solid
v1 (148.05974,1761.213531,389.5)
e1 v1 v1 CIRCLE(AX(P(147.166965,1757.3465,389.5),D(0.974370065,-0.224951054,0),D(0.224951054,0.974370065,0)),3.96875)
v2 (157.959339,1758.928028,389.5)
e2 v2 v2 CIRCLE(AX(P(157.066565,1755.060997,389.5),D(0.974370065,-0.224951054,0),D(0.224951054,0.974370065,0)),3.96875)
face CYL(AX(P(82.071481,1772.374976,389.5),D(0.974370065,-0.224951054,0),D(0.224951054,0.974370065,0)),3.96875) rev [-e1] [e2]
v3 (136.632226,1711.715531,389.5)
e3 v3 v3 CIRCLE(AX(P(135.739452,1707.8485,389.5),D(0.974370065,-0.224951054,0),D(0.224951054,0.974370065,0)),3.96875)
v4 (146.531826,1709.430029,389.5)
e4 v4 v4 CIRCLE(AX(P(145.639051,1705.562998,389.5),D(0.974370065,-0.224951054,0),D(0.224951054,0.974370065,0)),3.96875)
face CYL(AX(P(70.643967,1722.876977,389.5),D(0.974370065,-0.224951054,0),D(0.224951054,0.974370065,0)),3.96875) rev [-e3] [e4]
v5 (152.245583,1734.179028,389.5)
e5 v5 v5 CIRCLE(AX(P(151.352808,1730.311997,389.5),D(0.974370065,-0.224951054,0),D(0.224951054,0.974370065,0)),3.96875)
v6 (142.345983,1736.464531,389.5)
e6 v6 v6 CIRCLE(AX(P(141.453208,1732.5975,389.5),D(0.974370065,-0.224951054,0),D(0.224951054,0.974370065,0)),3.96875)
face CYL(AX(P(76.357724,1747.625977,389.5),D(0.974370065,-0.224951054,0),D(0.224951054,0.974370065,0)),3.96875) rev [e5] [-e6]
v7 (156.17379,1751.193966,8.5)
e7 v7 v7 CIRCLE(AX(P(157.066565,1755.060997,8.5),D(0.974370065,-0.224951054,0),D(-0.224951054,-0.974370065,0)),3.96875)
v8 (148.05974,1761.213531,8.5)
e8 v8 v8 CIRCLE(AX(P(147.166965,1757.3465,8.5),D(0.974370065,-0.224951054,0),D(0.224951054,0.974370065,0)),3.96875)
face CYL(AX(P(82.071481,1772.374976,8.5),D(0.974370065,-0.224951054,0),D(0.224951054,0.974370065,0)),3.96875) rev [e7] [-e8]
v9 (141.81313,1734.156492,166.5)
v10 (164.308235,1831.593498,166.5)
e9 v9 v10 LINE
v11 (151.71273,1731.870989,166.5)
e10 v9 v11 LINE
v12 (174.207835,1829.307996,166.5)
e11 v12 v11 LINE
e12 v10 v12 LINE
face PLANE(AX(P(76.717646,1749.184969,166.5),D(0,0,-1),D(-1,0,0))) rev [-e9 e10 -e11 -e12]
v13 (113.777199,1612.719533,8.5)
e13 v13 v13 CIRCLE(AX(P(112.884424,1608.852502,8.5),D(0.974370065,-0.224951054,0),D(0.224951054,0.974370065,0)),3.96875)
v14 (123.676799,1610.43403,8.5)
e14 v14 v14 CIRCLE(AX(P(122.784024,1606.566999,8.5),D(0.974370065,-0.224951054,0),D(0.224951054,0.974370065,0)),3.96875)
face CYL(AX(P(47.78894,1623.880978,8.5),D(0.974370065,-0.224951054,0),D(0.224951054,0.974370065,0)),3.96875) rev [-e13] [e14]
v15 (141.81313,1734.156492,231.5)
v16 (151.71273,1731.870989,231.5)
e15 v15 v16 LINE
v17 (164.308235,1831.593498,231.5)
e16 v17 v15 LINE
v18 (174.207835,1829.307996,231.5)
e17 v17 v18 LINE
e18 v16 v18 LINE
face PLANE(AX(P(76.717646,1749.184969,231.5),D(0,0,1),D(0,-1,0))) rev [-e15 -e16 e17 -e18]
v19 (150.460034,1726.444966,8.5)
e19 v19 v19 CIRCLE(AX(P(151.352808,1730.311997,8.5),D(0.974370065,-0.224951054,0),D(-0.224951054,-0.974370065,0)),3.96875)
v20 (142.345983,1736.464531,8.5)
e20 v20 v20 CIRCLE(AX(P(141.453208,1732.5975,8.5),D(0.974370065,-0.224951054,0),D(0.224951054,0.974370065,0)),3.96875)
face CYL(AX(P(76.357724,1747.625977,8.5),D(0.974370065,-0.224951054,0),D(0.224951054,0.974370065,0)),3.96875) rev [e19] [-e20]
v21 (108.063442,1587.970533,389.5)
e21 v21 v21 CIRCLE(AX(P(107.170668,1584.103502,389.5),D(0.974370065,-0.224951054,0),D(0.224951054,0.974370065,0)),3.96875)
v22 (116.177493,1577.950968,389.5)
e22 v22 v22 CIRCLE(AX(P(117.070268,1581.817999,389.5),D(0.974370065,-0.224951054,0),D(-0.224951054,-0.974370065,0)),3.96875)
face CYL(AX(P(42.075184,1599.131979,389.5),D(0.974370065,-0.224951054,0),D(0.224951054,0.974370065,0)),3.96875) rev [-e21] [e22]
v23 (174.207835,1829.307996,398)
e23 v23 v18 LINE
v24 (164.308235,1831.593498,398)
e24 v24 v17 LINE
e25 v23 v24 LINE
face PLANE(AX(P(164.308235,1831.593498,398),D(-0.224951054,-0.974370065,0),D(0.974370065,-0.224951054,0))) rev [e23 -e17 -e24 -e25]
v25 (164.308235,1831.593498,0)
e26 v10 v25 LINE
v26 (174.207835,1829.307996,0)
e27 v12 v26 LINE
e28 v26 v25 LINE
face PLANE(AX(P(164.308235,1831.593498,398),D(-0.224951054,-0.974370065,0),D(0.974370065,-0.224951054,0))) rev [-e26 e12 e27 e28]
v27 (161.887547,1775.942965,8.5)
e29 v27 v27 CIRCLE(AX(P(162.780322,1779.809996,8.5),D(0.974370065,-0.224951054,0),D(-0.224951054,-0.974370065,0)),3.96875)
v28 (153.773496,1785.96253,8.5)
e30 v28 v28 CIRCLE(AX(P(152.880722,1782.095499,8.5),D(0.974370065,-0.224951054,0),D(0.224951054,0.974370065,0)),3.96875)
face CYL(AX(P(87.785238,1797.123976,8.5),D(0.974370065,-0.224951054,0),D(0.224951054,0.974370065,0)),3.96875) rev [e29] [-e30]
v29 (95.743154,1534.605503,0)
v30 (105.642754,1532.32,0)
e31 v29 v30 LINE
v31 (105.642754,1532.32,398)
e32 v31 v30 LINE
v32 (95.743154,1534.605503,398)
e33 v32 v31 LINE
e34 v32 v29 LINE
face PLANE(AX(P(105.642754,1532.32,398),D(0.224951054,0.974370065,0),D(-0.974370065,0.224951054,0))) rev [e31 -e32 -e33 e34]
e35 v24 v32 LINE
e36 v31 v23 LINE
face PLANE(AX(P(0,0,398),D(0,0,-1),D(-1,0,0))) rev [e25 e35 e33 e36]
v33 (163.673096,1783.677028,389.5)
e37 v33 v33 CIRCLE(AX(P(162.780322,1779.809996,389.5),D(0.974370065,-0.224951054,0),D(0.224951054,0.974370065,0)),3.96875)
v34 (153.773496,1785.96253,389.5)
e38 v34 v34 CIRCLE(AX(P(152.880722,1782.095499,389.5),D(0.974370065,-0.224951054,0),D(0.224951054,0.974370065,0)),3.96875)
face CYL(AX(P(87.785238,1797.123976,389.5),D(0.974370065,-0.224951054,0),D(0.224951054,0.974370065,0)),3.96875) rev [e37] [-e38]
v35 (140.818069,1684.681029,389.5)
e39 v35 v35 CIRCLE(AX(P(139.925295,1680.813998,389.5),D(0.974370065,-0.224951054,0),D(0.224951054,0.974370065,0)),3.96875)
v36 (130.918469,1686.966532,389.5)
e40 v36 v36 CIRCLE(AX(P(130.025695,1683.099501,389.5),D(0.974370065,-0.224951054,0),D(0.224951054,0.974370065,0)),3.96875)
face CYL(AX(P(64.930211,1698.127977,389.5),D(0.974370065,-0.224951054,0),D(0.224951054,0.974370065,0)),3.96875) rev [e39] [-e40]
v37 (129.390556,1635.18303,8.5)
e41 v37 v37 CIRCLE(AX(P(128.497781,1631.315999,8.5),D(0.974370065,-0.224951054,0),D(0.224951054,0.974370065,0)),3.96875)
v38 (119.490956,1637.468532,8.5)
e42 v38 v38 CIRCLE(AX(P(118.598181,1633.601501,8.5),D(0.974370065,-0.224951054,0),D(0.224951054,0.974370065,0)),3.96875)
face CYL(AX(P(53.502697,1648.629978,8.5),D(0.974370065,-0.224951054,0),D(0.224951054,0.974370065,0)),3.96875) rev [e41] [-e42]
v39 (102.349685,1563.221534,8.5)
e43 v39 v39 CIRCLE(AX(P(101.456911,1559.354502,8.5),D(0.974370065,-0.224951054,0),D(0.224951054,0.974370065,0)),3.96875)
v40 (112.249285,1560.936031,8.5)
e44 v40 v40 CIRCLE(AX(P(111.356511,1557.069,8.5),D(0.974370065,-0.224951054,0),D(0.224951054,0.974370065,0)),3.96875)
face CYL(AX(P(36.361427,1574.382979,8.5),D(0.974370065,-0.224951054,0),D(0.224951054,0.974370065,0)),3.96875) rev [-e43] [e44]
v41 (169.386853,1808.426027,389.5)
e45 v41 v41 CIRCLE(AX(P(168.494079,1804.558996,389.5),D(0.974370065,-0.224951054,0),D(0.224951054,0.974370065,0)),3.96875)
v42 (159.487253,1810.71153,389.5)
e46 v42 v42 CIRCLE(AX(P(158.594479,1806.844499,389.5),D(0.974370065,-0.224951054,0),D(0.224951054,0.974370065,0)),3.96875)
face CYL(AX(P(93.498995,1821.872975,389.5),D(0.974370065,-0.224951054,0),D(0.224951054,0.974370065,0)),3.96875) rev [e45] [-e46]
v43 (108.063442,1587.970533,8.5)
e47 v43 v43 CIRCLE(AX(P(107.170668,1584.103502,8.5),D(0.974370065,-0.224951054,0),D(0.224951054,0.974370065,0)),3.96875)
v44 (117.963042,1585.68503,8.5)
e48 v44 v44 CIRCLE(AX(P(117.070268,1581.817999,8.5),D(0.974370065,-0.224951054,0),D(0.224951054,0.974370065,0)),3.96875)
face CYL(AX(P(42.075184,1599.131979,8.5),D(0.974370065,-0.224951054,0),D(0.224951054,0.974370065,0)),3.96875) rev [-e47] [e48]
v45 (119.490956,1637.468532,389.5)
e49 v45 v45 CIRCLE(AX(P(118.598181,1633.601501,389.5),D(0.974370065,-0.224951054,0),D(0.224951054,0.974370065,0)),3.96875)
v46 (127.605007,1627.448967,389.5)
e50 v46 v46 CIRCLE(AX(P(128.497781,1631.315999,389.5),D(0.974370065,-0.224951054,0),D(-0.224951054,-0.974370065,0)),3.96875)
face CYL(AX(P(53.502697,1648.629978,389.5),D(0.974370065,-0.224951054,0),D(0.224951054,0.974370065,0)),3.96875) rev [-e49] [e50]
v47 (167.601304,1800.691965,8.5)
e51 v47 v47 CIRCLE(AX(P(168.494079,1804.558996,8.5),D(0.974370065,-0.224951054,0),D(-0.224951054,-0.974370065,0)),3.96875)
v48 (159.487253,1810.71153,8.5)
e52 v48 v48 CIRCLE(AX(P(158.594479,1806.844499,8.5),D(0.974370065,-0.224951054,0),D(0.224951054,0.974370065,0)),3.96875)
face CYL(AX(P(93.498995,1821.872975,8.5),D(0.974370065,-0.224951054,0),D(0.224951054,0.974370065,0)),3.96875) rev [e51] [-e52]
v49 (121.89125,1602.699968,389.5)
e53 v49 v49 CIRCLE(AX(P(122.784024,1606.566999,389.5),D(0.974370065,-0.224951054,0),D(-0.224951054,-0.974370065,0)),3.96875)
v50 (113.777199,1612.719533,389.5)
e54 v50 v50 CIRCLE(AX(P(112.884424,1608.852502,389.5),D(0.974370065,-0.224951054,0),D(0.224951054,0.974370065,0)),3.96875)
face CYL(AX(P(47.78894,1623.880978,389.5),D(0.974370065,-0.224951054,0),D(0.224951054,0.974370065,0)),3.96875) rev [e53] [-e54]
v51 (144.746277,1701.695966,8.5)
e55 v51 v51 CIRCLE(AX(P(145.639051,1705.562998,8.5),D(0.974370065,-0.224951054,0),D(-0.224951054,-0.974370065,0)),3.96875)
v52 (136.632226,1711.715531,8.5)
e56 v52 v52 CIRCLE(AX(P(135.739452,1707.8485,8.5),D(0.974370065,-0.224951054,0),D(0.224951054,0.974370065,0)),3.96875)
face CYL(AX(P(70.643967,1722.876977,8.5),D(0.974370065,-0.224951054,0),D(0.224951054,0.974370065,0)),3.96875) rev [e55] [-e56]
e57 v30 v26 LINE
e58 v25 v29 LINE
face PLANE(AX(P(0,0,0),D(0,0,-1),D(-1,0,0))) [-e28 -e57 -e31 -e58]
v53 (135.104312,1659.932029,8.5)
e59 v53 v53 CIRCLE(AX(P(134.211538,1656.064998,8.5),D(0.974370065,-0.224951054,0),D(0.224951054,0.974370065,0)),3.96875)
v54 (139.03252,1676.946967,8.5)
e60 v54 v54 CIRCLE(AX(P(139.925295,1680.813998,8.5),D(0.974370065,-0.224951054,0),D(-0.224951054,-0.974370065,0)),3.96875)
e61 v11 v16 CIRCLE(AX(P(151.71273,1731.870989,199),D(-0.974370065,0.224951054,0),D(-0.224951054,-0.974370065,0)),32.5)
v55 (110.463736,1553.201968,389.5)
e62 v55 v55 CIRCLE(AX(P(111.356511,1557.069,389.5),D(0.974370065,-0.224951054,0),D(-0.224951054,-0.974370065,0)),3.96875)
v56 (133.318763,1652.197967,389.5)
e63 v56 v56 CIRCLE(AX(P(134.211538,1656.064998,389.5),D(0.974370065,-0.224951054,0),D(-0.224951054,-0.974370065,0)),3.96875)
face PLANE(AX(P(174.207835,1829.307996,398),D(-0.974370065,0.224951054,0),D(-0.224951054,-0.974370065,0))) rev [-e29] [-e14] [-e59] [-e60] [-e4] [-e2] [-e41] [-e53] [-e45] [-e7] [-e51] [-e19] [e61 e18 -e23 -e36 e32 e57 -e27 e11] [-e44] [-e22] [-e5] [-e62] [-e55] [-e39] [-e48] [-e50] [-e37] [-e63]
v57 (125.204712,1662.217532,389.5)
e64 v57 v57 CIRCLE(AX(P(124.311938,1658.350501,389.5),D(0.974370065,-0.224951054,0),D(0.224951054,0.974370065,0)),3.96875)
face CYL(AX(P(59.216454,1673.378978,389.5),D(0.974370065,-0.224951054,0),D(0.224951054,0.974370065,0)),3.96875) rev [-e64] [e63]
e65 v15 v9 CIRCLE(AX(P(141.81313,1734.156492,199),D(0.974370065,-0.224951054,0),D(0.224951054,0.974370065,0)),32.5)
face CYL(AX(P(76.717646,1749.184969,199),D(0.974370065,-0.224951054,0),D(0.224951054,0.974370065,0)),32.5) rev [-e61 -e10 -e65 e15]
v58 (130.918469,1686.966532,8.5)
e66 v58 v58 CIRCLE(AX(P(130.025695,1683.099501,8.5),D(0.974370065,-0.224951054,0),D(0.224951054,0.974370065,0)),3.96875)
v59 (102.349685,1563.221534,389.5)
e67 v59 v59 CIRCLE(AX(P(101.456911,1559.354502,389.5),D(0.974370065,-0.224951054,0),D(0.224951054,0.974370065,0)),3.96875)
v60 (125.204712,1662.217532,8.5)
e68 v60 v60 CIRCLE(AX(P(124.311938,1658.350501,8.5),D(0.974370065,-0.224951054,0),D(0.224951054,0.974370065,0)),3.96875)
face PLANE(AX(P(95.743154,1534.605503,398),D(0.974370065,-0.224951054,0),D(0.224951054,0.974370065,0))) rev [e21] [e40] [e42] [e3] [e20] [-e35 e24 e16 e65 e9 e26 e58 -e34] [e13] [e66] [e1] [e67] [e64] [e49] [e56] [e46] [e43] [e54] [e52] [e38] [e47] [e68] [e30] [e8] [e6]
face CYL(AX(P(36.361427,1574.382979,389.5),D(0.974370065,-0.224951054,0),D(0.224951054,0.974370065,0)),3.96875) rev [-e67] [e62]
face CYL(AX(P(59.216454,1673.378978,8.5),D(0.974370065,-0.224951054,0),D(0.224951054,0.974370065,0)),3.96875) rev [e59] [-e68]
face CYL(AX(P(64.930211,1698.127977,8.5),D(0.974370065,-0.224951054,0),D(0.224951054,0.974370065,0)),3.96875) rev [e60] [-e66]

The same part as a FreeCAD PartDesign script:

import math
import FreeCAD as App
import Part
import Sketcher

V = App.Vector
Q = App.Units.Quantity

doc = App.newDocument("Part")
body = doc.addObject("PartDesign::Body", "Body")

sketch1 = doc.addObject("Sketcher::SketchObject", "Sketch")
body.addObject(sketch1)
sketch1.AttachmentSupport = (doc.XY_Plane, [""])
sketch1.MapMode = "FlatFace"
sketch1.addGeometry([
    Part.LineSegment(V(105.642754, 1532.32, 0), V(174.207835, 1829.307996, 0)),
    Part.LineSegment(V(174.207835, 1829.307996, 0), V(164.308235, 1831.593498, 0)),
    Part.LineSegment(V(164.308235, 1831.593498, 0), V(95.743154, 1534.605503, 0)),
    Part.LineSegment(V(95.743154, 1534.605503, 0), V(105.642754, 1532.32, 0)),
], False)
sketch1.addConstraint([
    Sketcher.Constraint("Coincident", 0, 2, 1, 1),
    Sketcher.Constraint("Coincident", 1, 2, 2, 1),
    Sketcher.Constraint("Coincident", 2, 2, 3, 1),
    Sketcher.Constraint("Coincident", 3, 2, 0, 1),
    Sketcher.Constraint("Perpendicular", 0, 1),
    Sketcher.Constraint("Perpendicular", 1, 2),
    Sketcher.Constraint("Perpendicular", 2, 3),
    Sketcher.Constraint("Angle", 0, Q("77 deg")),
    Sketcher.Constraint("Distance", 0, 304.8),
    Sketcher.Constraint("Distance", 1, 10.16),
    Sketcher.Constraint("DistanceY", -1, 1, 3, 2, 1532.32),
    Sketcher.Constraint("DistanceX", -1, 1, 0, 2, 174.207835),
])
pad1 = doc.addObject("PartDesign::Pad", "Pad")
body.addObject(pad1)
pad1.Profile = sketch1
pad1.Length = 398

sketch2 = doc.addObject("Sketcher::SketchObject", "Sketch001")
body.addObject(sketch2)
sketch2.Placement = App.Placement(V(-235.565521, 54.384587, 0), App.Rotation(V(0, 0, -1), V(0.224951054, 0.974370065, 0), V(0.974370065, -0.224951054, 0), "ZXY"))
sketch2.addGeometry([
    Part.LineSegment(V(-231.5, 1821.611187, 0), V(-231.5, 1721.611187, 0)),
    Part.ArcOfCircle(Part.Circle(V(-199, 1721.611187, 0), V(0, 0, 1), 32.5), math.radians(180), math.radians(360)),
    Part.LineSegment(V(-166.5, 1721.611187, 0), V(-166.5, 1821.611187, 0)),
    Part.LineSegment(V(-166.5, 1821.611187, 0), V(-231.5, 1821.611187, 0)),
], False)
sketch2.addConstraint([
    Sketcher.Constraint("Tangent", 0, 2, 1, 1),
    Sketcher.Constraint("Tangent", 1, 2, 2, 1),
    Sketcher.Constraint("Coincident", 2, 2, 3, 1),
    Sketcher.Constraint("Coincident", 3, 2, 0, 1),
    Sketcher.Constraint("Vertical", 0),
    Sketcher.Constraint("Vertical", 2),
    Sketcher.Constraint("Horizontal", 3),
    Sketcher.Constraint("Radius", 1, 32.5),
    Sketcher.Constraint("DistanceY", 0, 2, 0, 1, 100.0),
    Sketcher.Constraint("DistanceX", 1, 3, -1, 1, 199.0),
    Sketcher.Constraint("DistanceY", -1, 1, 1, 3, 1721.611187),
])
pocket1 = doc.addObject("PartDesign::Pocket", "Pocket")
body.addObject(pocket1)
pocket1.Profile = sketch2
pocket1.Type = "ThroughAll"
pocket1.Midplane = True

sketch3 = doc.addObject("Sketcher::SketchObject", "Sketch002")
body.addObject(sketch3)
sketch3.Placement = App.Placement(V(-235.565522, 54.384586, 0), App.Rotation(V(0, 0, -1), V(0.224951054, 0.974370065, 0), V(0.974370065, -0.224951054, 0), "ZXY"))
sketch3.addGeometry([
    Part.Circle(V(-389.5, 1669.211187, 0), V(0, 0, 1), 3.96875),
    Part.Circle(V(-389.5, 1694.611187, 0), V(0, 0, 1), 3.96875),
    Part.Circle(V(-389.5, 1720.011187, 0), V(0, 0, 1), 3.96875),
    Part.Circle(V(-389.5, 1745.411187, 0), V(0, 0, 1), 3.96875),
    Part.Circle(V(-389.5, 1770.811187, 0), V(0, 0, 1), 3.96875),
    Part.Circle(V(-389.5, 1796.211187, 0), V(0, 0, 1), 3.96875),
    Part.Circle(V(-389.5, 1542.211187, 0), V(0, 0, 1), 3.96875),
    Part.Circle(V(-389.5, 1567.611187, 0), V(0, 0, 1), 3.96875),
    Part.Circle(V(-389.5, 1593.011187, 0), V(0, 0, 1), 3.96875),
    Part.Circle(V(-389.5, 1618.411187, 0), V(0, 0, 1), 3.96875),
    Part.Circle(V(-389.5, 1643.811187, 0), V(0, 0, 1), 3.96875),
    Part.Circle(V(-8.5, 1643.811187, 0), V(0, 0, 1), 3.96875),
    Part.Circle(V(-8.5, 1618.411187, 0), V(0, 0, 1), 3.96875),
    Part.Circle(V(-8.5, 1593.011187, 0), V(0, 0, 1), 3.96875),
    Part.Circle(V(-8.5, 1567.611187, 0), V(0, 0, 1), 3.96875),
    Part.Circle(V(-8.5, 1542.211187, 0), V(0, 0, 1), 3.96875),
    Part.Circle(V(-8.5, 1796.211187, 0), V(0, 0, 1), 3.96875),
    Part.Circle(V(-8.5, 1770.811187, 0), V(0, 0, 1), 3.96875),
    Part.Circle(V(-8.5, 1745.411187, 0), V(0, 0, 1), 3.96875),
    Part.Circle(V(-8.5, 1720.011187, 0), V(0, 0, 1), 3.96875),
    Part.Circle(V(-8.5, 1694.611187, 0), V(0, 0, 1), 3.96875),
    Part.Circle(V(-8.5, 1669.211187, 0), V(0, 0, 1), 3.96875),
], False)
sketch3.addConstraint([
    Sketcher.Constraint("Equal", 0, 1),
    Sketcher.Constraint("Equal", 1, 2),
    Sketcher.Constraint("Equal", 2, 3),
    Sketcher.Constraint("Equal", 3, 4),
    Sketcher.Constraint("Equal", 4, 5),
    Sketcher.Constraint("Equal", 5, 6),
    Sketcher.Constraint("Equal", 6, 7),
    Sketcher.Constraint("Equal", 7, 8),
    Sketcher.Constraint("Equal", 8, 9),
    Sketcher.Constraint("Equal", 9, 10),
    Sketcher.Constraint("Equal", 10, 11),
    Sketcher.Constraint("Equal", 11, 12),
    Sketcher.Constraint("Equal", 12, 13),
    Sketcher.Constraint("Equal", 13, 14),
    Sketcher.Constraint("Equal", 14, 15),
    Sketcher.Constraint("Equal", 15, 16),
    Sketcher.Constraint("Equal", 16, 17),
    Sketcher.Constraint("Equal", 17, 18),
    Sketcher.Constraint("Equal", 18, 19),
    Sketcher.Constraint("Equal", 19, 20),
    Sketcher.Constraint("Equal", 20, 21),
    Sketcher.Constraint("Horizontal", 10, 3, 11, 3),
    Sketcher.Constraint("Horizontal", 9, 3, 12, 3),
    Sketcher.Constraint("Horizontal", 8, 3, 13, 3),
    Sketcher.Constraint("Horizontal", 7, 3, 14, 3),
    Sketcher.Constraint("Horizontal", 6, 3, 15, 3),
    Sketcher.Constraint("Horizontal", 5, 3, 16, 3),
    Sketcher.Constraint("Horizontal", 4, 3, 17, 3),
    Sketcher.Constraint("Horizontal", 3, 3, 18, 3),
    Sketcher.Constraint("Horizontal", 2, 3, 19, 3),
    Sketcher.Constraint("Horizontal", 1, 3, 20, 3),
    Sketcher.Constraint("Horizontal", 0, 3, 21, 3),
    Sketcher.Constraint("Vertical", 0, 3, 1, 3),
    Sketcher.Constraint("Vertical", 1, 3, 2, 3),
    Sketcher.Constraint("Vertical", 2, 3, 3, 3),
    Sketcher.Constraint("Vertical", 3, 3, 4, 3),
    Sketcher.Constraint("Vertical", 4, 3, 5, 3),
    Sketcher.Constraint("Vertical", 5, 3, 6, 3),
    Sketcher.Constraint("Vertical", 6, 3, 7, 3),
    Sketcher.Constraint("Vertical", 7, 3, 8, 3),
    Sketcher.Constraint("Vertical", 8, 3, 9, 3),
    Sketcher.Constraint("Vertical", 9, 3, 10, 3),
    Sketcher.Constraint("Vertical", 11, 3, 12, 3),
    Sketcher.Constraint("Vertical", 12, 3, 13, 3),
    Sketcher.Constraint("Vertical", 13, 3, 14, 3),
    Sketcher.Constraint("Vertical", 14, 3, 15, 3),
    Sketcher.Constraint("Vertical", 15, 3, 16, 3),
    Sketcher.Constraint("Vertical", 16, 3, 17, 3),
    Sketcher.Constraint("Vertical", 17, 3, 18, 3),
    Sketcher.Constraint("Vertical", 18, 3, 19, 3),
    Sketcher.Constraint("Vertical", 19, 3, 20, 3),
    Sketcher.Constraint("Vertical", 20, 3, 21, 3),
    Sketcher.Constraint("DistanceY", 0, 3, 5, 3, 127.0),
    Sketcher.Constraint("DistanceY", 6, 3, 0, 3, 127.0),
    Sketcher.Constraint("DistanceY", 7, 3, 1, 3, 127.0),
    Sketcher.Constraint("DistanceY", 8, 3, 2, 3, 127.0),
    Sketcher.Constraint("DistanceX", 10, 3, 11, 3, 381.0),
    Sketcher.Constraint("DistanceY", 11, 3, 17, 3, 127.0),
    Sketcher.Constraint("DistanceY", 12, 3, 18, 3, 127.0),
    Sketcher.Constraint("Diameter", 0, 7.9375),
    Sketcher.Constraint("DistanceX", 0, 3, -1, 1, 389.5),
    Sketcher.Constraint("DistanceY", 0, 3, 1, 3, 25.4),
    Sketcher.Constraint("DistanceY", 1, 3, 2, 3, 25.4),
    Sketcher.Constraint("DistanceY", 2, 3, 3, 3, 25.4),
    Sketcher.Constraint("DistanceY", 3, 3, 4, 3, 25.4),
    Sketcher.Constraint("DistanceY", -1, 1, 0, 3, 1669.211187),
])
pocket2 = doc.addObject("PartDesign::Pocket", "Pocket001")
body.addObject(pocket2)
pocket2.Profile = sketch3
pocket2.Type = "ThroughAll"

doc.recompute()
